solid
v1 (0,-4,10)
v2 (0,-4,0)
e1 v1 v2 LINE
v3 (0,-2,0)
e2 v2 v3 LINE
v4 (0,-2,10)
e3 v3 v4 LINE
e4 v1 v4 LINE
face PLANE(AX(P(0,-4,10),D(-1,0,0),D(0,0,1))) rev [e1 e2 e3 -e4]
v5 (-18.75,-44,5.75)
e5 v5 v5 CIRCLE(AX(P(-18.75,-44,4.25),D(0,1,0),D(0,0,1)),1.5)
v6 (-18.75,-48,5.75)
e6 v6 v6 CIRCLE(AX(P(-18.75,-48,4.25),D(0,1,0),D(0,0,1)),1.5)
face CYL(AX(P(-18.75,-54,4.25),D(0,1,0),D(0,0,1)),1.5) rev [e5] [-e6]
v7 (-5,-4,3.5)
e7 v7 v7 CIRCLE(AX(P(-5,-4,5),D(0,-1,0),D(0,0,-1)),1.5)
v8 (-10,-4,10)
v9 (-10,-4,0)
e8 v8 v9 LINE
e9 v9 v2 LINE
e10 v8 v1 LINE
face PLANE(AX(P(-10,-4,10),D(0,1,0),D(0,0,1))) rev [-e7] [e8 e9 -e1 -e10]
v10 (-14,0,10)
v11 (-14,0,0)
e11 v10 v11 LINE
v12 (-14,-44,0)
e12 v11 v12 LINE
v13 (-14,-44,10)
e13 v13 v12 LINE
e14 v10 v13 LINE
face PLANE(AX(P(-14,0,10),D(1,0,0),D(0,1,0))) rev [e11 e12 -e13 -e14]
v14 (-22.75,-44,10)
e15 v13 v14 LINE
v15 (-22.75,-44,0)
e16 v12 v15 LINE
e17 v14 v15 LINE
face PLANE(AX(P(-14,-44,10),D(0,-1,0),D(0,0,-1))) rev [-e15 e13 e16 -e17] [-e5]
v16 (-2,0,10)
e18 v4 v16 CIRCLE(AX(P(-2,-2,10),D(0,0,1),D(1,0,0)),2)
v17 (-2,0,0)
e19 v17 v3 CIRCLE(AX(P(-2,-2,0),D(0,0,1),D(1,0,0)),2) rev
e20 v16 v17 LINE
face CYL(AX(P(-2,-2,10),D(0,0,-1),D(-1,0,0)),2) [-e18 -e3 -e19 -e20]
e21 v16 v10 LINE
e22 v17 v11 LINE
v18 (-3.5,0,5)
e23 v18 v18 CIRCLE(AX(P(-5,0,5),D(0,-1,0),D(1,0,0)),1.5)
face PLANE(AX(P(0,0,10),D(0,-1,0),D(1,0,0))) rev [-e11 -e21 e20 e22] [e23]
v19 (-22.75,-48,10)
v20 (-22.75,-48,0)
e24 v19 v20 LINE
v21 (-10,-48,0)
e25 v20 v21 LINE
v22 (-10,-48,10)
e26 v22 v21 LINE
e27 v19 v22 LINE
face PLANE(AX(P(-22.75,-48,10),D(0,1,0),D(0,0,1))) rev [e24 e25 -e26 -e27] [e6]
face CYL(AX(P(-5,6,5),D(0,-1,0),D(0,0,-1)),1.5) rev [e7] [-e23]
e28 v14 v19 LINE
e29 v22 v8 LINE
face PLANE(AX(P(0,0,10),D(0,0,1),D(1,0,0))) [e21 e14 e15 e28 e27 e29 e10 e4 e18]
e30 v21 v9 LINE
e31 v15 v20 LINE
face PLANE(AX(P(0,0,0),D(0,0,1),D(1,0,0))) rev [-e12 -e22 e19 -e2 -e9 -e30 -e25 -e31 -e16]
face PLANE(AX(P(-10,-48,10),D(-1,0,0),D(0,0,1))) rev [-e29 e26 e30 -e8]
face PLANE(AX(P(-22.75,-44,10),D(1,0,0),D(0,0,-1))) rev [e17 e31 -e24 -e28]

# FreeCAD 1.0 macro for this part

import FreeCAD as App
import Part
import Sketcher
from FreeCAD import Vector
Q = App.Units.Quantity


def edges_at(feature, points):
    """Names of the edges that pass closest to the given points."""
    edges = feature.Shape.Edges
    near = lambda p: min(range(len(edges)), key=lambda i: edges[i].distToShape(Part.Vertex(*p))[0])
    return sorted({f"Edge{near(p) + 1}" for p in points})

doc = App.newDocument("Part")
body = doc.addObject("PartDesign::Body", "Body")

# Sketch on XY plane
sketch1 = body.newObject("Sketcher::SketchObject", "Sketch")
sketch1.AttachmentSupport = (doc.getObject("XY_Plane"), [""])
sketch1.MapMode = "FlatFace"
sketch1.addGeometry(Part.LineSegment(Vector(0, 0, 0), Vector(-14, 0, 0)), False)
sketch1.addGeometry(Part.LineSegment(Vector(-14, 0, 0), Vector(-14, -44, 0)), False)
sketch1.addGeometry(Part.LineSegment(Vector(-14, -44, 0), Vector(-22.75, -44, 0)), False)
sketch1.addGeometry(Part.LineSegment(Vector(-22.75, -44, 0), Vector(-22.75, -48, 0)), False)
sketch1.addGeometry(Part.LineSegment(Vector(-22.75, -48, 0), Vector(-10, -48, 0)), False)
sketch1.addGeometry(Part.LineSegment(Vector(-10, -48, 0), Vector(-10, -4, 0)), False)
sketch1.addGeometry(Part.LineSegment(Vector(-10, -4, 0), Vector(0, -4, 0)), False)
sketch1.addGeometry(Part.LineSegment(Vector(0, -4, 0), Vector(0, 0, 0)), False)
sketch1.addConstraint(Sketcher.Constraint("Coincident", 0, 2, 1, 1))
sketch1.addConstraint(Sketcher.Constraint("Coincident", 1, 2, 2, 1))
sketch1.addConstraint(Sketcher.Constraint("Coincident", 2, 2, 3, 1))
sketch1.addConstraint(Sketcher.Constraint("Coincident", 3, 2, 4, 1))
sketch1.addConstraint(Sketcher.Constraint("Coincident", 4, 2, 5, 1))
sketch1.addConstraint(Sketcher.Constraint("Coincident", 5, 2, 6, 1))
sketch1.addConstraint(Sketcher.Constraint("Coincident", 6, 2, 7, 1))
sketch1.addConstraint(Sketcher.Constraint("Coincident", 7, 2, 0, 1))
sketch1.addConstraint(Sketcher.Constraint("Horizontal", 0))
sketch1.addConstraint(Sketcher.Constraint("Vertical", 1))
sketch1.addConstraint(Sketcher.Constraint("Horizontal", 2))
sketch1.addConstraint(Sketcher.Constraint("Vertical", 3))
sketch1.addConstraint(Sketcher.Constraint("Horizontal", 4))
sketch1.addConstraint(Sketcher.Constraint("Vertical", 5))
sketch1.addConstraint(Sketcher.Constraint("Horizontal", 6))
sketch1.addConstraint(Sketcher.Constraint("Vertical", 7))
sketch1.addConstraint(Sketcher.Constraint("Coincident", 7, 2, -1, 1))
sketch1.addConstraint(Sketcher.Constraint("Equal", 1, 5))
sketch1.addConstraint(Sketcher.Constraint("DistanceX", 0, 2, 0, 1, Q("14 mm")))
sketch1.addConstraint(Sketcher.Constraint("DistanceX", 6, 1, 6, 2, Q("10 mm")))
sketch1.addConstraint(Sketcher.Constraint("DistanceY", 1, 2, 1, 1, Q("44 mm")))
sketch1.addConstraint(Sketcher.Constraint("DistanceY", 3, 2, 3, 1, Q("4 mm")))
sketch1.addConstraint(Sketcher.Constraint("DistanceX", 2, 2, 2, 1, Q("8.75 mm")))
pad1 = body.newObject("PartDesign::Pad", "Pad")
pad1.Profile = sketch1
pad1.Length = 10

# Sketch on XZ plane
sketch2 = body.newObject("Sketcher::SketchObject", "Sketch001")
sketch2.AttachmentSupport = (doc.getObject("XZ_Plane"), [""])
sketch2.MapMode = "FlatFace"
sketch2.AttachmentOffset = App.Placement(Vector(0, 0, 44), App.Rotation())
sketch2.addGeometry(Part.Circle(Vector(-18.75, 4.25, 0), Vector(0, 0, 1), 1.5), False)
sketch2.addConstraint(Sketcher.Constraint("Diameter", 0, Q("3 mm")))
sketch2.addConstraint(Sketcher.Constraint("DistanceX", 0, 3, -1, 1, Q("18.75 mm")))
sketch2.addConstraint(Sketcher.Constraint("DistanceY", -1, 1, 0, 3, Q("4.25 mm")))
pocket1 = body.newObject("PartDesign::Pocket", "Pocket")
pocket1.Profile = sketch2
pocket1.Length = 10
pocket1.Reversed = True

# Sketch on XZ plane
sketch3 = body.newObject("Sketcher::SketchObject", "Sketch002")
sketch3.AttachmentSupport = (doc.getObject("XZ_Plane"), [""])
sketch3.MapMode = "FlatFace"
sketch3.AttachmentOffset = App.Placement(Vector(0, 0, 4), App.Rotation())
sketch3.addGeometry(Part.Circle(Vector(-5, 5, 0), Vector(0, 0, 1), 1.5), False)
sketch3.addConstraint(Sketcher.Constraint("Diameter", 0, Q("3 mm")))
sketch3.addConstraint(Sketcher.Constraint("DistanceX", 0, 3, -1, 1, Q("5 mm")))
sketch3.addConstraint(Sketcher.Constraint("DistanceY", -1, 1, 0, 3, Q("5 mm")))
pocket2 = body.newObject("PartDesign::Pocket", "Pocket001")
pocket2.Profile = sketch3
pocket2.Length = 10
doc.recompute()

fillet = body.newObject("PartDesign::Fillet", "Fillet")
fillet.Base = (pocket2, edges_at(pocket2, [(0, 0, 5)]))
fillet.Radius = 2

doc.recompute()
